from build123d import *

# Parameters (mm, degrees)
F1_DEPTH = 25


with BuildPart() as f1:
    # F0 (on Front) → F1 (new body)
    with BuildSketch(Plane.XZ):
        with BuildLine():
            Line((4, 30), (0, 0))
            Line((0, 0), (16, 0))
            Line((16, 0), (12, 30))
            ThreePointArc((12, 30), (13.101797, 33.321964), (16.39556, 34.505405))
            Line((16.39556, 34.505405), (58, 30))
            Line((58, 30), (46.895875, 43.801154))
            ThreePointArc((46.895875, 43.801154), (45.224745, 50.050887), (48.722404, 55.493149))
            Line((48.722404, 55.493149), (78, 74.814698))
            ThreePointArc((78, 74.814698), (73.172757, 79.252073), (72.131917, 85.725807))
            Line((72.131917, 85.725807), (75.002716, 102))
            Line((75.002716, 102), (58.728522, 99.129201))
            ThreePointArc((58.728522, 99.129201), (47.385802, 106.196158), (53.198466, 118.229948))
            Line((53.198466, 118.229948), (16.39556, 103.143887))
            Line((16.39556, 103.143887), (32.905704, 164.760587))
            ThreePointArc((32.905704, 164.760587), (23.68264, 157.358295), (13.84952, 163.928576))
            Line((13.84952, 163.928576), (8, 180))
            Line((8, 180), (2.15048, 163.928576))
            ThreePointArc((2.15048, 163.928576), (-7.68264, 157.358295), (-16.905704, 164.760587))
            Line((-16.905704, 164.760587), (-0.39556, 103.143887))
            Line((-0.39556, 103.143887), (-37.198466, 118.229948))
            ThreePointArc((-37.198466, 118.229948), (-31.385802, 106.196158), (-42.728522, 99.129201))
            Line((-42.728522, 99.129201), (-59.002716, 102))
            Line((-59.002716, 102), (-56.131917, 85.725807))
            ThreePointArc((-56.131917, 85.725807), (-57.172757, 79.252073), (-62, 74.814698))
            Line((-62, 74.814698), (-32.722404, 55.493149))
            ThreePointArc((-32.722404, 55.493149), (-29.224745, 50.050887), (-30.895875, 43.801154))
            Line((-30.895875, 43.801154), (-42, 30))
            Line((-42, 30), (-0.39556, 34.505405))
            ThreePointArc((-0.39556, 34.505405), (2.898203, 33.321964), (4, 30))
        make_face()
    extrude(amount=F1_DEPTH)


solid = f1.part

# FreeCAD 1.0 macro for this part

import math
import FreeCAD as App
import Part
import Sketcher
Q = App.Units.Quantity

doc = App.newDocument("Part")
body = doc.addObject("PartDesign::Body", "Body")

# Sketch on XZ plane
sketch1 = body.newObject("Sketcher::SketchObject", "Sketch")
sketch1.AttachmentSupport = (doc.getObject("XZ_Plane"), [""])
sketch1.MapMode = "FlatFace"
sketch1.addGeometry(Part.LineSegment(App.Vector(4, 30, 0), App.Vector(0, 0, 0)), False)
sketch1.addGeometry(Part.LineSegment(App.Vector(0, 0, 0), App.Vector(16, 0, 0)), False)
sketch1.addGeometry(Part.LineSegment(App.Vector(16, 0, 0), App.Vector(12, 30, 0)), False)
sketch1.addGeometry(Part.ArcOfCircle(Part.Circle(App.Vector(16, 30.5, 0), App.Vector(0, 0, 1), 4), math.radians(84), math.radians(188)), False)
sketch1.addGeometry(Part.LineSegment(App.Vector(16.4, 34.5, 0), App.Vector(58, 30, 0)), False)
sketch1.addGeometry(Part.LineSegment(App.Vector(58, 30, 0), App.Vector(46.9, 43.8, 0)), False)
sketch1.addGeometry(Part.ArcOfCircle(Part.Circle(App.Vector(53.1, 48.8, 0), App.Vector(0, 0, 1), 8), math.radians(123), math.radians(219)), False)
sketch1.addGeometry(Part.LineSegment(App.Vector(48.7, 55.5, 0), App.Vector(78, 74.8, 0)), False)
sketch1.addGeometry(Part.ArcOfCircle(Part.Circle(App.Vector(82, 84, 0), App.Vector(0, 0, 1), 10), math.radians(170), math.radians(247)), False)
sketch1.addGeometry(Part.LineSegment(App.Vector(72.1, 85.7, 0), App.Vector(75, 102, 0)), False)
sketch1.addGeometry(Part.LineSegment(App.Vector(75, 102, 0), App.Vector(58.7, 99.1, 0)), False)
sketch1.addGeometry(Part.ArcOfCircle(Part.Circle(App.Vector(57, 109, 0), App.Vector(0, 0, 1), 10), math.radians(112), math.radians(280)), False)
sketch1.addGeometry(Part.LineSegment(App.Vector(53.2, 118.2, 0), App.Vector(16.4, 103.1, 0)), False)
sketch1.addGeometry(Part.LineSegment(App.Vector(16.4, 103.1, 0), App.Vector(32.9, 164.8, 0)), False)
sketch1.addGeometry(Part.ArcOfCircle(Part.Circle(App.Vector(23.2, 167.3, 0), App.Vector(0, 0, 1), 10), math.radians(-160), math.radians(-15)), False)
sketch1.addGeometry(Part.LineSegment(App.Vector(13.8, 163.9, 0), App.Vector(8, 180, 0)), False)
sketch1.addGeometry(Part.LineSegment(App.Vector(8, 180, 0), App.Vector(2.2, 163.9, 0)), False)
sketch1.addGeometry(Part.ArcOfCircle(Part.Circle(App.Vector(-7.2, 167.3, 0), App.Vector(0, 0, 1), 10), math.radians(-165), math.radians(-20)), False)
sketch1.addGeometry(Part.LineSegment(App.Vector(-16.9, 164.8, 0), App.Vector(-0.4, 103.1, 0)), False)
sketch1.addGeometry(Part.LineSegment(App.Vector(-0.4, 103.1, 0), App.Vector(-37.2, 118.2, 0)), False)
sketch1.addGeometry(Part.ArcOfCircle(Part.Circle(App.Vector(-41, 109, 0), App.Vector(0, 0, 1), 10), math.radians(-100), math.radians(68)), False)
sketch1.addGeometry(Part.LineSegment(App.Vector(-42.7, 99.1, 0), App.Vector(-59, 102, 0)), False)
sketch1.addGeometry(Part.LineSegment(App.Vector(-59, 102, 0), App.Vector(-56.1, 85.7, 0)), False)
sketch1.addGeometry(Part.ArcOfCircle(Part.Circle(App.Vector(-66, 84, 0), App.Vector(0, 0, 1), 10), math.radians(-67), math.radians(10)), False)
sketch1.addGeometry(Part.LineSegment(App.Vector(-62, 74.8, 0), App.Vector(-32.7, 55.5, 0)), False)
sketch1.addGeometry(Part.ArcOfCircle(Part.Circle(App.Vector(-37.1, 48.8, 0), App.Vector(0, 0, 1), 8), math.radians(-39), math.radians(57)), False)
sketch1.addGeometry(Part.LineSegment(App.Vector(-30.9, 43.8, 0), App.Vector(-42, 30, 0)), False)
sketch1.addGeometry(Part.LineSegment(App.Vector(-42, 30, 0), App.Vector(-0.4, 34.5, 0)), False)
sketch1.addGeometry(Part.ArcOfCircle(Part.Circle(App.Vector(0, 30.5, 0), App.Vector(0, 0, 1), 4), math.radians(-8), math.radians(96)), False)
sketch1.addConstraint(Sketcher.Constraint("Coincident", 0, 2, 1, 1))
sketch1.addConstraint(Sketcher.Constraint("Coincident", 1, 2, 2, 1))
sketch1.addConstraint(Sketcher.Constraint("Tangent", 2, 2, 3, 2))
sketch1.addConstraint(Sketcher.Constraint("Tangent", 3, 1, 4, 1))
sketch1.addConstraint(Sketcher.Constraint("Coincident", 4, 2, 5, 1))
sketch1.addConstraint(Sketcher.Constraint("Tangent", 5, 2, 6, 2))
sketch1.addConstraint(Sketcher.Constraint("Tangent", 6, 1, 7, 1))
sketch1.addConstraint(Sketcher.Constraint("Coincident", 7, 2, 8, 2))
sketch1.addConstraint(Sketcher.Constraint("Tangent", 8, 1, 9, 1))
sketch1.addConstraint(Sketcher.Constraint("Coincident", 9, 2, 10, 1))
sketch1.addConstraint(Sketcher.Constraint("Tangent", 10, 2, 11, 2))
sketch1.addConstraint(Sketcher.Constraint("Tangent", 11, 1, 12, 1))
sketch1.addConstraint(Sketcher.Constraint("Coincident", 12, 2, 13, 1))
sketch1.addConstraint(Sketcher.Constraint("Tangent", 13, 2, 14, 2))
sketch1.addConstraint(Sketcher.Constraint("Tangent", 14, 1, 15, 1))
sketch1.addConstraint(Sketcher.Constraint("Coincident", 15, 2, 16, 1))
sketch1.addConstraint(Sketcher.Constraint("Tangent", 16, 2, 17, 2))
sketch1.addConstraint(Sketcher.Constraint("Tangent", 17, 1, 18, 1))
sketch1.addConstraint(Sketcher.Constraint("Coincident", 18, 2, 19, 1))
sketch1.addConstraint(Sketcher.Constraint("Tangent", 19, 2, 20, 2))
sketch1.addConstraint(Sketcher.Constraint("Tangent", 20, 1, 21, 1))
sketch1.addConstraint(Sketcher.Constraint("Coincident", 21, 2, 22, 1))
sketch1.addConstraint(Sketcher.Constraint("Tangent", 22, 2, 23, 2))
sketch1.addConstraint(Sketcher.Constraint("Coincident", 23, 1, 24, 1))
sketch1.addConstraint(Sketcher.Constraint("Tangent", 24, 2, 25, 2))
sketch1.addConstraint(Sketcher.Constraint("Tangent", 25, 1, 26, 1))
sketch1.addConstraint(Sketcher.Constraint("Coincident", 26, 2, 27, 1))
sketch1.addConstraint(Sketcher.Constraint("Tangent", 27, 2, 28, 2))
sketch1.addConstraint(Sketcher.Constraint("Tangent", 28, 1, 0, 1))
sketch1.addConstraint(Sketcher.Constraint("Horizontal", 1))
sketch1.addConstraint(Sketcher.Constraint("Coincident", 0, 2, -1, 1))
sketch1.addConstraint(Sketcher.Constraint("Equal", 11, 14))
sketch1.addConstraint(Sketcher.Constraint("Equal", 14, 17))
sketch1.addConstraint(Sketcher.Constraint("Equal", 17, 20))
sketch1.addConstraint(Sketcher.Constraint("Equal", 8, 23))
sketch1.addConstraint(Sketcher.Constraint("Equal", 6, 25))
sketch1.addConstraint(Sketcher.Constraint("Equal", 3, 28))
sketch1.addConstraint(Sketcher.Constraint("Perpendicular", 9, 21))
sketch1.addConstraint(Sketcher.Constraint("Perpendicular", 10, 22))
sketch1.addConstraint(Sketcher.Constraint("Horizontal", 14, 3, 17, 3))
sketch1.addConstraint(Sketcher.Constraint("Horizontal", 11, 3, 20, 3))
sketch1.addConstraint(Sketcher.Constraint("Horizontal", 8, 3, 23, 3))
sketch1.addConstraint(Sketcher.Constraint("Horizontal", 6, 3, 25, 3))
sketch1.addConstraint(Sketcher.Constraint("Horizontal", 3, 3, 28, 3))
sketch1.addConstraint(Sketcher.Constraint("Horizontal", 2, 2, 4, 2))
sketch1.addConstraint(Sketcher.Constraint("Horizontal", 14, 1, 16, 2))
sketch1.addConstraint(Sketcher.Constraint("Horizontal", 13, 2, 17, 1))
sketch1.addConstraint(Sketcher.Constraint("Horizontal", 12, 2, 18, 2))
sketch1.addConstraint(Sketcher.Constraint("Horizontal", 11, 1, 19, 2))
sketch1.addConstraint(Sketcher.Constraint("Horizontal", 10, 2, 20, 1))
sketch1.addConstraint(Sketcher.Constraint("Horizontal", 9, 2, 21, 2))
sketch1.addConstraint(Sketcher.Constraint("Horizontal", 7, 2, 23, 1))
sketch1.addConstraint(Sketcher.Constraint("Horizontal", 6, 1, 24, 2))
sketch1.addConstraint(Sketcher.Constraint("Horizontal", 5, 2, 25, 1))
sketch1.addConstraint(Sketcher.Constraint("Horizontal", 4, 2, 26, 2))
sketch1.addConstraint(Sketcher.Constraint("Horizontal", 26, 2, 28, 1))
sketch1.addConstraint(Sketcher.Constraint("Vertical", 3, 1, 12, 2))
sketch1.addConstraint(Sketcher.Constraint("Vertical", 18, 2, 27, 2))
sketch1.addConstraint(Sketcher.Constraint("Equal", 9, 10))
sketch1.addConstraint(Sketcher.Constraint("Radius", 3, Q("4 mm")))
sketch1.addConstraint(Sketcher.Constraint("Radius", 6, Q("7.999998 mm")))
sketch1.addConstraint(Sketcher.Constraint("Radius", 11, Q("10 mm")))
sketch1.addConstraint(Sketcher.Constraint("DistanceX", 1, 1, 1, 2, Q("16 mm")))
sketch1.addConstraint(Sketcher.Constraint("Angle", 13, Q("75.000001 deg")))
sketch1.addConstraint(Sketcher.Constraint("Angle", 15, Q("110 deg")))
sketch1.addConstraint(Sketcher.Constraint("DistanceX", -1, 1, 2, 2, Q("12 mm")))
sketch1.addConstraint(Sketcher.Constraint("DistanceY", -1, 1, 2, 2, Q("30 mm")))
sketch1.addConstraint(Sketcher.Constraint("DistanceX", -1, 1, 4, 2, Q("58 mm")))
sketch1.addConstraint(Sketcher.Constraint("DistanceX", -1, 1, 7, 2, Q("78 mm")))
sketch1.addConstraint(Sketcher.Constraint("DistanceY", -1, 1, 9, 2, Q("102 mm")))
sketch1.addConstraint(Sketcher.Constraint("DistanceY", -1, 1, 15, 2, Q("180 mm")))
sketch1.addConstraint(Sketcher.Constraint("Radius", 8, Q("10.000003 mm")))
sketch1.addConstraint(Sketcher.Constraint("DistanceX", 5, 2, 6, 3, Q("6.233 mm")))
sketch1.addConstraint(Sketcher.Constraint("Distance", 13, Q("63.790302 mm")))
sketch1.addConstraint(Sketcher.Constraint("DistanceY", -1, 1, 6, 3, Q("48.8161 mm")))
sketch1.addConstraint(Sketcher.Constraint("DistanceY", -1, 1, 7, 2, Q("74.814698 mm")))
sketch1.addConstraint(Sketcher.Constraint("DistanceY", -1, 1, 10, 2, Q("99.129201 mm")))
sketch1.addConstraint(Sketcher.Constraint("DistanceX", 20, 3, 6, 3, Q("94.1202 mm")))
pad1 = body.newObject("PartDesign::Pad", "Pad")
pad1.Profile = sketch1
pad1.Length = 25

doc.recompute()
